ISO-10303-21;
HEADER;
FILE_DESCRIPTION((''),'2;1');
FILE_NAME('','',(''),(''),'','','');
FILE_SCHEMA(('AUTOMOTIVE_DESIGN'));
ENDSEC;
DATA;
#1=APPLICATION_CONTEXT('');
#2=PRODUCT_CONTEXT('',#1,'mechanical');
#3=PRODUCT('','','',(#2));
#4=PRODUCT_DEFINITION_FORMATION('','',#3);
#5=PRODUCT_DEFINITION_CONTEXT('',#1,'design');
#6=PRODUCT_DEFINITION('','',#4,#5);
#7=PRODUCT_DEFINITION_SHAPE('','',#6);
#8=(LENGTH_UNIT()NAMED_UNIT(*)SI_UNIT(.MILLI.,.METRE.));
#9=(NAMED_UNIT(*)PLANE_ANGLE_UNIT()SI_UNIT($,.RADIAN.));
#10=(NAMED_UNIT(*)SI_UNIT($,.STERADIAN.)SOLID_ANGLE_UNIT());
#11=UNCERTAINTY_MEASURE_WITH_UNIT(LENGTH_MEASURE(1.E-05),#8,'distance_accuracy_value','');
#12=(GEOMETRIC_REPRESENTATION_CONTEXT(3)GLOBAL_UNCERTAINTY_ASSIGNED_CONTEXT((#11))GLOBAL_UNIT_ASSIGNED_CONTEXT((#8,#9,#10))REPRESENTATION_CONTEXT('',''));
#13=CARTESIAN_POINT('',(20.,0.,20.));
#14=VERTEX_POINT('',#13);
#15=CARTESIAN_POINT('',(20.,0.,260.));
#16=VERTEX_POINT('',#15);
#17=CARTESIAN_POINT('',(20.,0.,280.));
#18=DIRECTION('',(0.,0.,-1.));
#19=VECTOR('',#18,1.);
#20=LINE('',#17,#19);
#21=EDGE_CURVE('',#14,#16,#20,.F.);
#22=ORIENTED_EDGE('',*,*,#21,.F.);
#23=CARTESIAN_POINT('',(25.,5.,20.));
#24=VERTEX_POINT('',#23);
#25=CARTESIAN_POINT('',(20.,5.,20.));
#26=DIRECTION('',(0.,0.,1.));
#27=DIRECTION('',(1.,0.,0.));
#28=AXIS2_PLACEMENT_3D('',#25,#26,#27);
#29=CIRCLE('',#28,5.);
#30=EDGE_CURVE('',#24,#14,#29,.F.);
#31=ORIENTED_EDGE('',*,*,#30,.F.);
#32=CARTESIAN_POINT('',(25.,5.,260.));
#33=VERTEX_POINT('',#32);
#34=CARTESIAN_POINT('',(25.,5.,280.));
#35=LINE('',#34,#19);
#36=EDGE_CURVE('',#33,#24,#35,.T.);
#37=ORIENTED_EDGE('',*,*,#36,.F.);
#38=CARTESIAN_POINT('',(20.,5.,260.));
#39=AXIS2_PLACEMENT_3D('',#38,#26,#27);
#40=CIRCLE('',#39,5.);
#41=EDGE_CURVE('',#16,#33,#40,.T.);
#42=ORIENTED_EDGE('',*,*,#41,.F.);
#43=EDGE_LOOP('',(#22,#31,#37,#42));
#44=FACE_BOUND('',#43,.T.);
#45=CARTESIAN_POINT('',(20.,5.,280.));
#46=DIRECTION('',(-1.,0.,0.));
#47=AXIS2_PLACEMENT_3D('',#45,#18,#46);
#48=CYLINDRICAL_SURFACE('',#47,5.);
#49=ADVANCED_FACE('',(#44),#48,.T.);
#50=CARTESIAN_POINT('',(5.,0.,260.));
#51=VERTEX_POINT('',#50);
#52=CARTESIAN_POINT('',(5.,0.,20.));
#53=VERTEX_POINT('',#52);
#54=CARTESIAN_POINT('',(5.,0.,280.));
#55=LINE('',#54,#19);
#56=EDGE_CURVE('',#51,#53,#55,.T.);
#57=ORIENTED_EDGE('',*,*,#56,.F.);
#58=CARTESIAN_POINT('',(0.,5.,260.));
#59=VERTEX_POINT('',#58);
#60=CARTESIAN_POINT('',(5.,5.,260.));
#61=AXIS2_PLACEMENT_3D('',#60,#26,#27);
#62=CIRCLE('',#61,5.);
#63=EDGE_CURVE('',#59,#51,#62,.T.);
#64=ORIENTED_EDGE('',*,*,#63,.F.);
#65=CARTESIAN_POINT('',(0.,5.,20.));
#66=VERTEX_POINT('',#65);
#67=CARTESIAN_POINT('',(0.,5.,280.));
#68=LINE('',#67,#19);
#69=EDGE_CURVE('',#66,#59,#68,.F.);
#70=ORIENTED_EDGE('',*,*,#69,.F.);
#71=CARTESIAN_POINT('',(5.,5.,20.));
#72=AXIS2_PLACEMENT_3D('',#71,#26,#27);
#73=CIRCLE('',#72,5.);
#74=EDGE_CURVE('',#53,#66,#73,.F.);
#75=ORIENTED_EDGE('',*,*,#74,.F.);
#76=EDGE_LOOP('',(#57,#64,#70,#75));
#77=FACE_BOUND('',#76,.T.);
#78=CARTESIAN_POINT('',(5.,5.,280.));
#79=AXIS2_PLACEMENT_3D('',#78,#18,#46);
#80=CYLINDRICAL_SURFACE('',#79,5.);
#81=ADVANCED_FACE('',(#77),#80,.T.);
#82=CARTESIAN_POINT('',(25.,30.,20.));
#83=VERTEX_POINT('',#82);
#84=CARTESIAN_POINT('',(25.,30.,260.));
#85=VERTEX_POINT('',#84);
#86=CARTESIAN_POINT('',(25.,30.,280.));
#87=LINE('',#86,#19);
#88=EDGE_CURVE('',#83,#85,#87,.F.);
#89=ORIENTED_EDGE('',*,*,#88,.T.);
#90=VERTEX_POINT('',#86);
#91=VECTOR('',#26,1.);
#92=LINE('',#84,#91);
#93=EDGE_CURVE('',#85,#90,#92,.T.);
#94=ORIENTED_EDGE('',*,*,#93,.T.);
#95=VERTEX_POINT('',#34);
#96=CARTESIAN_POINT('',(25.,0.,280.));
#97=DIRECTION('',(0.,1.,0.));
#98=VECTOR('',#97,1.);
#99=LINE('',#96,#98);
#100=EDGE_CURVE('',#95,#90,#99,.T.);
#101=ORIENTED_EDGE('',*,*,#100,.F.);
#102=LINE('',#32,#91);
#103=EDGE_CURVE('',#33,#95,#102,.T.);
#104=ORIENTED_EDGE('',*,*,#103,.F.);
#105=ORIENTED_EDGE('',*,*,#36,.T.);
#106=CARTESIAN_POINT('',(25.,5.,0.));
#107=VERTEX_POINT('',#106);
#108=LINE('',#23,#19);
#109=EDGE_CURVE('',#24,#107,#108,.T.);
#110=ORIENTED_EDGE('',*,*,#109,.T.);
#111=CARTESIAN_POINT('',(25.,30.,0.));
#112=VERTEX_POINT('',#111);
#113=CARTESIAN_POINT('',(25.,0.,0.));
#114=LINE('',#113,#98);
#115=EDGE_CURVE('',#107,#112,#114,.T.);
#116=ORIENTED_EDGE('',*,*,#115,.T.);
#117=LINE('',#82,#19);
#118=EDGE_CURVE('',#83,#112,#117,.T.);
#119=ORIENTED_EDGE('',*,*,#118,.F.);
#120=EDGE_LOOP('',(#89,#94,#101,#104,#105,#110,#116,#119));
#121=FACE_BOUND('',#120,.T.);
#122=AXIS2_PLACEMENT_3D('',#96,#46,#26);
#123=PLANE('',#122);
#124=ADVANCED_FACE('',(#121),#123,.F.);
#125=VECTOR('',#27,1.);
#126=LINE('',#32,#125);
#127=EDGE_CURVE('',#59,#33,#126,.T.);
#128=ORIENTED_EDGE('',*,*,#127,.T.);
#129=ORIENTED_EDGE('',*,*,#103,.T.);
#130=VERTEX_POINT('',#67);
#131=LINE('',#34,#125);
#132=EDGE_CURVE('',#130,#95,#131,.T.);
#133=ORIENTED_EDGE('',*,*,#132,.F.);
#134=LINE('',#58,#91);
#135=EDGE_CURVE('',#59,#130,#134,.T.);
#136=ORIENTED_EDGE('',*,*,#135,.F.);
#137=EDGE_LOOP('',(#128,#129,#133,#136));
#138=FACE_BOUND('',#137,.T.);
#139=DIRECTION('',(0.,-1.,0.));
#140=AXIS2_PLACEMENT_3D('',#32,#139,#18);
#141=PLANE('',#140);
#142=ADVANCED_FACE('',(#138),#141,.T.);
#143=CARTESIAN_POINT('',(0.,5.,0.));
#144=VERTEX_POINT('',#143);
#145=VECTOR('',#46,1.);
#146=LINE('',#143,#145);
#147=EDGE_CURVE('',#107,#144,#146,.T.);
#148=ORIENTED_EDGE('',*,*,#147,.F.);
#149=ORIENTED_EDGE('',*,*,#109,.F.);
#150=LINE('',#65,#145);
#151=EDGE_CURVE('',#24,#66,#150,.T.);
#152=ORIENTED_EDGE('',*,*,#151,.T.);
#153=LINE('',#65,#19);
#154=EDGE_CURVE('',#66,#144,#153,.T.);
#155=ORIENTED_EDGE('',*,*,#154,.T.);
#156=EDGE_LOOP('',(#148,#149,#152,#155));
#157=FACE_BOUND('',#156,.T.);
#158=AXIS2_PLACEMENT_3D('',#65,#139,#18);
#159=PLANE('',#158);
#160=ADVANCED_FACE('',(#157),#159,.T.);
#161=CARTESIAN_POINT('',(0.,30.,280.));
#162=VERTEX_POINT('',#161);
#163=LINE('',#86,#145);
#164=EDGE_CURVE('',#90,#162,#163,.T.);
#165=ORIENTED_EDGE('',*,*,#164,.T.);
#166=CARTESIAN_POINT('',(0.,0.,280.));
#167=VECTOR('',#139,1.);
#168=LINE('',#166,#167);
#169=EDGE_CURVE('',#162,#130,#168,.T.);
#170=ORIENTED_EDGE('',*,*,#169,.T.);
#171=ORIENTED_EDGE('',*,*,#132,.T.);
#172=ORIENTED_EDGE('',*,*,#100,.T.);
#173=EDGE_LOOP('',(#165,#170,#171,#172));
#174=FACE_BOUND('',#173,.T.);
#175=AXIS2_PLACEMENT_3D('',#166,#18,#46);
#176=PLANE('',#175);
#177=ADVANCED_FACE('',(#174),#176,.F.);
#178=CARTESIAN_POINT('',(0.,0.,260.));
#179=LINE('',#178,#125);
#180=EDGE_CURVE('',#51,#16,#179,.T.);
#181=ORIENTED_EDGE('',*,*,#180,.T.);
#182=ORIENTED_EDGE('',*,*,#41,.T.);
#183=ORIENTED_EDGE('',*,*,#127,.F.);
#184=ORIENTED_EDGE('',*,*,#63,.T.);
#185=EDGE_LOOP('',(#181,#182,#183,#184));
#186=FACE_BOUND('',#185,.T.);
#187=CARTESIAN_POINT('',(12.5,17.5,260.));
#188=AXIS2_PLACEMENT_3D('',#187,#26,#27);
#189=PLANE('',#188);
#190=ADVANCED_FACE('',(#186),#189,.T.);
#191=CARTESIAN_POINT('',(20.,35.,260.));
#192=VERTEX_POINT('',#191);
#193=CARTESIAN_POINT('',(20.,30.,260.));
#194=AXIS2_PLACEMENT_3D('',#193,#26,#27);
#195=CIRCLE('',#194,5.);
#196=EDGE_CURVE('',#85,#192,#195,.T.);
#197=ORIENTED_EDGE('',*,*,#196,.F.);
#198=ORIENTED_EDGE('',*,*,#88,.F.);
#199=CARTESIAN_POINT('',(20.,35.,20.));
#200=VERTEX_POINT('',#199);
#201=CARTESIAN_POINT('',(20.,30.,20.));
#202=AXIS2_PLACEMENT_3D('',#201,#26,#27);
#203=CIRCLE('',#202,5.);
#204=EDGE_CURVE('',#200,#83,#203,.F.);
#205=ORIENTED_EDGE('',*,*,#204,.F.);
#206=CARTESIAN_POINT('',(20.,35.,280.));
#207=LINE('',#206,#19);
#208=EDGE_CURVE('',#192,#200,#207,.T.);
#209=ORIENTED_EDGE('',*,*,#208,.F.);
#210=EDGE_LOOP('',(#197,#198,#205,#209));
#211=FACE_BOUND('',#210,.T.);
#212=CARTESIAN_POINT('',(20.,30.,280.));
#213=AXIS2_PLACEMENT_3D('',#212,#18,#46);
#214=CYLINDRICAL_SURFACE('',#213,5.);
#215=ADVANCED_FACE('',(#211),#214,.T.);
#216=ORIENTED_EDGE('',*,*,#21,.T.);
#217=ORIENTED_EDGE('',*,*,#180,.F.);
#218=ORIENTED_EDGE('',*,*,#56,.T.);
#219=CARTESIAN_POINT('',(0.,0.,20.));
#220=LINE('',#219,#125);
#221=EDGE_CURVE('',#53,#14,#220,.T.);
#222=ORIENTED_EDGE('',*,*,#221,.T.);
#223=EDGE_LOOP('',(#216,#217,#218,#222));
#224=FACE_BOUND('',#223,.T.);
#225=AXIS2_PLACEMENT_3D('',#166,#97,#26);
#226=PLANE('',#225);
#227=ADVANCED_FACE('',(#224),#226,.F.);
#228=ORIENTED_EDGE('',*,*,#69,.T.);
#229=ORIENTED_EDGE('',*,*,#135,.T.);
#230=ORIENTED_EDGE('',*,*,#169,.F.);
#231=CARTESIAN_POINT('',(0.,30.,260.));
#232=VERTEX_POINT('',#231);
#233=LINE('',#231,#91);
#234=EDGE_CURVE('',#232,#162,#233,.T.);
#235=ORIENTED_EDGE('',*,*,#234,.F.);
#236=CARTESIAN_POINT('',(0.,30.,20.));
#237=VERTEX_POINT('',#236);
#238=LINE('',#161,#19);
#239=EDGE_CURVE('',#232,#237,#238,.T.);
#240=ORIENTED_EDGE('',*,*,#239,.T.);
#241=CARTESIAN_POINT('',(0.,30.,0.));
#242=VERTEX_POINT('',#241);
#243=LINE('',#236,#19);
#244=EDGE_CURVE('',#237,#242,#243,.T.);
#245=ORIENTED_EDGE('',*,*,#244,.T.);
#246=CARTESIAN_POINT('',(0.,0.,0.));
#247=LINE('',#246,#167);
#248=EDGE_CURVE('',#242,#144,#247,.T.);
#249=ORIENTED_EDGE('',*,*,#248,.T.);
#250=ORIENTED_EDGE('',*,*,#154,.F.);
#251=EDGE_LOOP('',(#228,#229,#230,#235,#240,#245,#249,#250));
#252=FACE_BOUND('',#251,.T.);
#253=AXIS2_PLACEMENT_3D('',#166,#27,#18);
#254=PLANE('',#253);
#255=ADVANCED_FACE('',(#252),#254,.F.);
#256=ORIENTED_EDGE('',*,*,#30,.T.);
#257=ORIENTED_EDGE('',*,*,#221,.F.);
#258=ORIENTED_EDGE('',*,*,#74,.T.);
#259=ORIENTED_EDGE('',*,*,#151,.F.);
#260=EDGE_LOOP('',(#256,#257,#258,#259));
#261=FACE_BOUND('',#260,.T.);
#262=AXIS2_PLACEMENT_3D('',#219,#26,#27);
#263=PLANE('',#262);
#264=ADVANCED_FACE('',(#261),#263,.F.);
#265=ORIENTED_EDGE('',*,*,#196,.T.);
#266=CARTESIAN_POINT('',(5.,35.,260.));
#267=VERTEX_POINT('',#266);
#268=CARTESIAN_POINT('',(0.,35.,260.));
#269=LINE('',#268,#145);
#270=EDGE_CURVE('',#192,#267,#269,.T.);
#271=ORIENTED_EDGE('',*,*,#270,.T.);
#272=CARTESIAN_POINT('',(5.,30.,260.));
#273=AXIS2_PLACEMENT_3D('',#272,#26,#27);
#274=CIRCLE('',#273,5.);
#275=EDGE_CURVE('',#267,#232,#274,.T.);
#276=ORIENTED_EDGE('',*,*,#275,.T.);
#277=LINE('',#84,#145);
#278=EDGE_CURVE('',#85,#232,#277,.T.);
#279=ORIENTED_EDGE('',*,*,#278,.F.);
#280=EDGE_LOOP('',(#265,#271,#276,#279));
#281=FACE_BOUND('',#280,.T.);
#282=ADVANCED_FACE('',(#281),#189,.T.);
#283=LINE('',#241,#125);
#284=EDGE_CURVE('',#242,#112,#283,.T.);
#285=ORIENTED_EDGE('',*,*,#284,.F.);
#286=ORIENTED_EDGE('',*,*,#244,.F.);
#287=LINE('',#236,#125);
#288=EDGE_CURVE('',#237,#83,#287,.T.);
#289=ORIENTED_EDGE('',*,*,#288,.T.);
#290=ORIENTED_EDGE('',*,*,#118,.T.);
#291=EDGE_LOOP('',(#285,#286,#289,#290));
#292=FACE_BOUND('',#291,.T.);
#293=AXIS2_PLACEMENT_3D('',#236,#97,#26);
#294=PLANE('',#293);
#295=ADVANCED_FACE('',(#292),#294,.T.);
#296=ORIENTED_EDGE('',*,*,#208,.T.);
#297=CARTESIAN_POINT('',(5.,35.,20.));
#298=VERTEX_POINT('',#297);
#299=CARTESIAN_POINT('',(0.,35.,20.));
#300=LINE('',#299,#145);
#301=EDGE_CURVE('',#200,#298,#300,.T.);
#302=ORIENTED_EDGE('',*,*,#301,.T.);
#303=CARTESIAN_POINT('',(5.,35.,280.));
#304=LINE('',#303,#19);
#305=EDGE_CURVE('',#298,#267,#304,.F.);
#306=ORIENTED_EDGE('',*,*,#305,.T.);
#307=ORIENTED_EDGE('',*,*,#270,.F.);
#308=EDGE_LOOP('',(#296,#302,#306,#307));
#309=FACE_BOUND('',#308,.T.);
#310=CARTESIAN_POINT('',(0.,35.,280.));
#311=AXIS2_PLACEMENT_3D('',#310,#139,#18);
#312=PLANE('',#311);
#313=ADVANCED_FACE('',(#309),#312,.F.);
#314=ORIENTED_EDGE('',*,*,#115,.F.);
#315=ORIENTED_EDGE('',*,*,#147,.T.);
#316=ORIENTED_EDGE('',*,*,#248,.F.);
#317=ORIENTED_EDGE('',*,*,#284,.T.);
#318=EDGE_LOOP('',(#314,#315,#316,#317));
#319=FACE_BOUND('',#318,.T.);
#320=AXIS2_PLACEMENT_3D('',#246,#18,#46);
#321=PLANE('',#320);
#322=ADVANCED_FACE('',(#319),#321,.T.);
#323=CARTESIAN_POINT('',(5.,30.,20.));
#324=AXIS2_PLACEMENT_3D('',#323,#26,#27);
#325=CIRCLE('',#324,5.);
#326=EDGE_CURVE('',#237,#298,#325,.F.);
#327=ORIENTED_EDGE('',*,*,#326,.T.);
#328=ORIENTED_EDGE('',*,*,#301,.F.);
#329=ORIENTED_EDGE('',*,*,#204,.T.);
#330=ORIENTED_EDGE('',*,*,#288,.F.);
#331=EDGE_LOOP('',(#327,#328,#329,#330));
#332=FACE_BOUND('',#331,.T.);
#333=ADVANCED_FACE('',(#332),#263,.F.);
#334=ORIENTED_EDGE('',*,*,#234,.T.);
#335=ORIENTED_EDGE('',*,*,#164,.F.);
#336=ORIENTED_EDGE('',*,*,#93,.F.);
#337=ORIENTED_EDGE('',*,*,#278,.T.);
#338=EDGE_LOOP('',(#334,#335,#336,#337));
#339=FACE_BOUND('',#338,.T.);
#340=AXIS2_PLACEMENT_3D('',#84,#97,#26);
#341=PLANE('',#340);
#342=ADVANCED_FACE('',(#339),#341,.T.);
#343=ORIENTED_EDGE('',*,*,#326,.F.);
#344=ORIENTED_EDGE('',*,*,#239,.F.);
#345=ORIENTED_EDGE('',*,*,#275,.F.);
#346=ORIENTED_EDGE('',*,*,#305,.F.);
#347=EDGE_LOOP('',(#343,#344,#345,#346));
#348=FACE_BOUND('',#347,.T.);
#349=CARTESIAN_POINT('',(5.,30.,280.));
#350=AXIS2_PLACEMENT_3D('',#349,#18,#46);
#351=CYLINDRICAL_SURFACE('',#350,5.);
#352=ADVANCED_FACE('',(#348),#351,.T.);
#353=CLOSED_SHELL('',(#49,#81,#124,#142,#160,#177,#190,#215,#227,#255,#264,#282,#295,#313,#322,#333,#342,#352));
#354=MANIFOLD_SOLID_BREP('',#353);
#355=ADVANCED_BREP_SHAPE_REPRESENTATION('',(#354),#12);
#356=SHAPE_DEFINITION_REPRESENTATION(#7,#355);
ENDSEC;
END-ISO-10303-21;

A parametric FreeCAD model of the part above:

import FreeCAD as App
import Part
import Sketcher
from FreeCAD import Vector


def edges_at(feature, points):
    """Names of the edges that pass closest to the given points."""
    edges = feature.Shape.Edges
    near = lambda p: min(range(len(edges)), key=lambda i: edges[i].distToShape(Part.Vertex(*p))[0])
    return sorted({f"Edge{near(p) + 1}" for p in points})


def add_polygon(sketch, points):
    """Adds a closed chain of lines whose ends are joined by coincident constraints."""
    first, n = sketch.GeometryCount, len(points)
    for a, b in zip(points, points[1:] + points[:1]):
        sketch.addGeometry(Part.LineSegment(App.Vector(*a, 0), App.Vector(*b, 0)), False)
    for i in range(n):
        sketch.addConstraint(Sketcher.Constraint("Coincident", first + i, 2, first + (i + 1) % n, 1))

doc = App.newDocument("Part")
body = doc.addObject("PartDesign::Body", "Body")

# Sketch on XY plane
sketch1 = body.newObject("Sketcher::SketchObject", "Sketch")
sketch1.AttachmentSupport = (doc.getObject("XY_Plane"), [""])
sketch1.MapMode = "FlatFace"
add_polygon(sketch1, [(0, 35), (0, 0), (25, 0), (25, 35)])  # lines 0-3
sketch1.addConstraint([
    Sketcher.Constraint("Vertical", 0),
    Sketcher.Constraint("Horizontal", 1),
    Sketcher.Constraint("Vertical", 2),
    Sketcher.Constraint("Horizontal", 3),
    Sketcher.Constraint("Coincident", 0, 2, -1, 1),
    Sketcher.Constraint("DistanceX", 1, 1, 1, 2, 25.0),
    Sketcher.Constraint("DistanceY", 0, 2, 0, 1, 35.0),
])
pad1 = body.newObject("PartDesign::Pad", "Pad")
pad1.Profile = sketch1
pad1.Length = 280

# Sketch on XY plane
sketch2 = body.newObject("Sketcher::SketchObject", "Sketch001")
sketch2.AttachmentSupport = (doc.getObject("XY_Plane"), [""])
sketch2.MapMode = "FlatFace"
sketch2.AttachmentOffset = App.Placement(Vector(0, 0, 280), App.Rotation())
add_polygon(sketch2, [(-29, 64), (-29, -29), (54, -29), (54, 64)])  # lines 0-3
add_polygon(sketch2, [(25, 5), (0, 5), (0, 30), (25, 30)])  # lines 4-7
sketch2.addConstraint([
    Sketcher.Constraint("Vertical", 0),
    Sketcher.Constraint("Horizontal", 1),
    Sketcher.Constraint("Vertical", 2),
    Sketcher.Constraint("Horizontal", 3),
    Sketcher.Constraint("Horizontal", 4),
    Sketcher.Constraint("Vertical", 5),
    Sketcher.Constraint("Horizontal", 6),
    Sketcher.Constraint("Vertical", 7),
    Sketcher.Constraint("PointOnObject", 4, 2, -2),
    Sketcher.Constraint("Equal", 6, 5),
    Sketcher.Constraint("DistanceX", 4, 2, 4, 1, 25.0),
    Sketcher.Constraint("DistanceY", -1, 1, 4, 2, 5.0),
    Sketcher.Constraint("DistanceX", 1, 1, 1, 2, 83.656),
    Sketcher.Constraint("DistanceY", 0, 2, 0, 1, 93.656),
    Sketcher.Constraint("DistanceX", 0, 2, -1, 1, 29.328),
    Sketcher.Constraint("DistanceY", 0, 2, -1, 1, 29.328),
])
pocket1 = body.newObject("PartDesign::Pocket", "Pocket")
pocket1.Profile = sketch2
pocket1.Length = 20

# Sketch on XY plane
sketch3 = body.newObject("Sketcher::SketchObject", "Sketch002")
sketch3.AttachmentSupport = (doc.getObject("XY_Plane"), [""])
sketch3.MapMode = "FlatFace"
add_polygon(sketch3, [(-29, 64), (-29, -29), (54, -29), (54, 64)])  # lines 0-3
add_polygon(sketch3, [(25, 5), (0, 5), (0, 30), (25, 30)])  # lines 4-7
sketch3.addConstraint([
    Sketcher.Constraint("Vertical", 0),
    Sketcher.Constraint("Horizontal", 1),
    Sketcher.Constraint("Vertical", 2),
    Sketcher.Constraint("Horizontal", 3),
    Sketcher.Constraint("Horizontal", 4),
    Sketcher.Constraint("Vertical", 5),
    Sketcher.Constraint("Horizontal", 6),
    Sketcher.Constraint("Vertical", 7),
    Sketcher.Constraint("PointOnObject", 4, 2, -2),
    Sketcher.Constraint("Equal", 6, 5),
    Sketcher.Constraint("DistanceX", 4, 2, 4, 1, 25.0),
    Sketcher.Constraint("DistanceY", -1, 1, 4, 2, 5.0),
    Sketcher.Constraint("DistanceX", 1, 1, 1, 2, 83.656),
    Sketcher.Constraint("DistanceY", 0, 2, 0, 1, 93.656),
    Sketcher.Constraint("DistanceX", 0, 2, -1, 1, 29.328),
    Sketcher.Constraint("DistanceY", 0, 2, -1, 1, 29.328),
])
pocket2 = body.newObject("PartDesign::Pocket", "Pocket001")
pocket2.Profile = sketch3
pocket2.Length = 20
pocket2.Reversed = True
doc.recompute()

fillet = body.newObject("PartDesign::Fillet", "Fillet")
fillet.Base = (pocket2, edges_at(pocket2, [
    (0, 0, 140),
    (25, 0, 140),
    (25, 35, 140),
    (0, 35, 140),
]))
fillet.Radius = 5

doc.recompute()
